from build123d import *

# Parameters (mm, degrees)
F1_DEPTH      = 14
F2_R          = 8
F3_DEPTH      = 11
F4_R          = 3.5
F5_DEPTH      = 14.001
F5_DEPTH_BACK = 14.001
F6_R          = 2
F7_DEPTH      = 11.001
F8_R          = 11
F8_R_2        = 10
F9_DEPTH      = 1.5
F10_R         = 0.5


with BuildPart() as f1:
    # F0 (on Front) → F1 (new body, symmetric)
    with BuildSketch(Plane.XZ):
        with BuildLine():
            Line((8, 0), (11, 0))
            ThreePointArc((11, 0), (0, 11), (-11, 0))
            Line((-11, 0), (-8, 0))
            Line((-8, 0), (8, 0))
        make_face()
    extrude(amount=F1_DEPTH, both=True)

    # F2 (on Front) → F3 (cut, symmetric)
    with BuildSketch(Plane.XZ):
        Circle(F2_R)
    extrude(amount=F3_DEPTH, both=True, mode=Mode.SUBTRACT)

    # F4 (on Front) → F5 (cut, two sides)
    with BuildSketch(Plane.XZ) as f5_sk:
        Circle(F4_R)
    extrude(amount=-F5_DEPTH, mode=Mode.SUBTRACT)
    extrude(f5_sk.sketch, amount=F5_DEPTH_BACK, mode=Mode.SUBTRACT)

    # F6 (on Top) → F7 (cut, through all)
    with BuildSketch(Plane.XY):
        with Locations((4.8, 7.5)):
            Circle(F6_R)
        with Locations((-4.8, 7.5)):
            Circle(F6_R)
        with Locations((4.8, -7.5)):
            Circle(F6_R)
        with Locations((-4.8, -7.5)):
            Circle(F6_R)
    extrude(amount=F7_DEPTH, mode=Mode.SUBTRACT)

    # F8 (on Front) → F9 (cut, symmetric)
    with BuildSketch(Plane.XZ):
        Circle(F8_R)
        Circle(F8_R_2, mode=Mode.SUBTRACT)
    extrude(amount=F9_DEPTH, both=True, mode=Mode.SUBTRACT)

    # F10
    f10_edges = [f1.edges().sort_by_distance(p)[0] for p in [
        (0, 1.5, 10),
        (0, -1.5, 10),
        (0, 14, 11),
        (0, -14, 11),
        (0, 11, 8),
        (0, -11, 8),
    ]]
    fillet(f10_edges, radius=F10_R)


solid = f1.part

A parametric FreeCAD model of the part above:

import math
import FreeCAD as App
import Part
import Sketcher

V = App.Vector


def edges_at(feature, points):
    """Names of the edges that pass closest to the given points."""
    edges = feature.Shape.Edges
    near = lambda p: min(range(len(edges)), key=lambda i: edges[i].distToShape(Part.Vertex(*p))[0])
    return sorted({f"Edge{near(p) + 1}" for p in points})

doc = App.newDocument("Part")
params = doc.addObject("Spreadsheet::Sheet", "Params")
for row, (alias, value) in enumerate([
    ("sketch1_radius", "11 mm"),
    ("pad1_length", "28 mm"),
    ("sketch2_diameter", "16 mm"),
    ("pocket1_length", "22 mm"),
    ("sketch3_diameter", "7 mm"),
    ("sketch4_diameter", "4 mm"),
    ("sketch5_diameter", "22 mm"),
    ("sketch5_diameter2", "20 mm"),
    ("pocket4_length", "3 mm"),
    ("fillet_radius", "0.5 mm"),
], start=1):
    params.set(f"A{row}", alias)
    params.set(f"B{row}", "=" + value)
    params.setAlias(f"B{row}", alias)

body = doc.addObject("PartDesign::Body", "Body")

# Sketch on XZ plane
sketch1 = body.newObject("Sketcher::SketchObject", "Sketch")
sketch1.AttachmentSupport = (doc.getObject("XZ_Plane"), [""])
sketch1.MapMode = "FlatFace"
sketch1.addGeometry(Part.ArcOfCircle(Part.Circle(V(0, 0, 0), V(0, 0, 1), 11), math.radians(0), math.radians(180)), False)
sketch1.addGeometry(Part.LineSegment(V(-11, 0, 0), V(11, 0, 0)), False)
sketch1.addConstraint(Sketcher.Constraint("Coincident", 0, 1, 1, 2))
sketch1.addConstraint(Sketcher.Constraint("Coincident", 1, 1, 0, 2))
sketch1.addConstraint(Sketcher.Constraint("Horizontal", 1))
sketch1.addConstraint(Sketcher.Constraint("Coincident", 0, 3, -1, 1))
sketch1.addConstraint(Sketcher.Constraint("PointOnObject", 0, 1, -1))
sketch1.addConstraint(Sketcher.Constraint("Radius", 0, 11.0))
sketch1.setExpression("Constraints[5]", "Params.sketch1_radius")
pad1 = body.newObject("PartDesign::Pad", "Pad")
pad1.Profile = sketch1
pad1.setExpression("Length", "Params.pad1_length")
pad1.Midplane = True

# Sketch on XZ plane
sketch2 = body.newObject("Sketcher::SketchObject", "Sketch001")
sketch2.AttachmentSupport = (doc.getObject("XZ_Plane"), [""])
sketch2.MapMode = "FlatFace"
sketch2.addGeometry(Part.Circle(V(0, 0, 0), V(0, 0, 1), 8), False)
sketch2.addConstraint(Sketcher.Constraint("Coincident", 0, 3, -1, 1))
sketch2.addConstraint(Sketcher.Constraint("Diameter", 0, 16.0))
sketch2.setExpression("Constraints[1]", "Params.sketch2_diameter")
pocket1 = body.newObject("PartDesign::Pocket", "Pocket")
pocket1.Profile = sketch2
pocket1.setExpression("Length", "Params.pocket1_length")
pocket1.Midplane = True

# Sketch on XZ plane
sketch3 = body.newObject("Sketcher::SketchObject", "Sketch002")
sketch3.AttachmentSupport = (doc.getObject("XZ_Plane"), [""])
sketch3.MapMode = "FlatFace"
sketch3.addGeometry(Part.Circle(V(0, 0, 0), V(0, 0, 1), 3.5), False)
sketch3.addConstraint(Sketcher.Constraint("Coincident", 0, 3, -1, 1))
sketch3.addConstraint(Sketcher.Constraint("Diameter", 0, 7.0))
sketch3.setExpression("Constraints[1]", "Params.sketch3_diameter")
pocket2 = body.newObject("PartDesign::Pocket", "Pocket001")
pocket2.Profile = sketch3
pocket2.Type = "ThroughAll"
pocket2.Midplane = True

# Sketch on XY plane
sketch4 = body.newObject("Sketcher::SketchObject", "Sketch003")
sketch4.AttachmentSupport = (doc.getObject("XY_Plane"), [""])
sketch4.MapMode = "FlatFace"
sketch4.addGeometry(Part.Circle(V(4.8, 7.5, 0), V(0, 0, 1), 2), False)
sketch4.addGeometry(Part.Circle(V(-4.8, 7.5, 0), V(0, 0, 1), 2), False)
sketch4.addGeometry(Part.Circle(V(4.8, -7.5, 0), V(0, 0, 1), 2), False)
sketch4.addGeometry(Part.Circle(V(-4.8, -7.5, 0), V(0, 0, 1), 2), False)
sketch4.addConstraint(Sketcher.Constraint("Equal", 0, 1))
sketch4.addConstraint(Sketcher.Constraint("Equal", 1, 2))
sketch4.addConstraint(Sketcher.Constraint("Equal", 2, 3))
sketch4.addConstraint(Sketcher.Constraint("Symmetric", 1, 3, 2, 3, -1, 1))
sketch4.addConstraint(Sketcher.Constraint("Symmetric", 0, 3, 3, 3, -1, 1))
sketch4.addConstraint(Sketcher.Constraint("Symmetric", 0, 3, 1, 3, -2))
sketch4.addConstraint(Sketcher.Constraint("Diameter", 0, 4.0))
sketch4.addConstraint(Sketcher.Constraint("DistanceY", 2, 3, 0, 3, 15.0))
sketch4.addConstraint(Sketcher.Constraint("DistanceX", -1, 1, 0, 3, 4.8))
sketch4.setExpression("Constraints[6]", "Params.sketch4_diameter")
pocket3 = body.newObject("PartDesign::Pocket", "Pocket002")
pocket3.Profile = sketch4
pocket3.Type = "ThroughAll"
pocket3.Reversed = True

# Sketch on XZ plane
sketch5 = body.newObject("Sketcher::SketchObject", "Sketch004")
sketch5.AttachmentSupport = (doc.getObject("XZ_Plane"), [""])
sketch5.MapMode = "FlatFace"
sketch5.addGeometry(Part.Circle(V(0, 0, 0), V(0, 0, 1), 11), False)
sketch5.addGeometry(Part.Circle(V(0, 0, 0), V(0, 0, 1), 10), False)
sketch5.addConstraint(Sketcher.Constraint("Coincident", 0, 3, -1, 1))
sketch5.addConstraint(Sketcher.Constraint("Coincident", 1, 3, -1, 1))
sketch5.addConstraint(Sketcher.Constraint("Diameter", 0, 22.0))
sketch5.addConstraint(Sketcher.Constraint("Diameter", 1, 20.0))
sketch5.setExpression("Constraints[2]", "Params.sketch5_diameter")
sketch5.setExpression("Constraints[3]", "Params.sketch5_diameter2")
pocket4 = body.newObject("PartDesign::Pocket", "Pocket003")
pocket4.Profile = sketch5
pocket4.setExpression("Length", "Params.pocket4_length")
pocket4.Midplane = True
doc.recompute()

fillet = body.newObject("PartDesign::Fillet", "Fillet")
fillet.Base = (pocket4, edges_at(pocket4, [
    (0, 1.5, 10),
    (0, -1.5, 10),
    (0, 14, 11),
    (0, -14, 11),
    (0, 11, 8),
    (0, -11, 8),
]))
fillet.setExpression("Radius", "Params.fillet_radius")

doc.recompute()
